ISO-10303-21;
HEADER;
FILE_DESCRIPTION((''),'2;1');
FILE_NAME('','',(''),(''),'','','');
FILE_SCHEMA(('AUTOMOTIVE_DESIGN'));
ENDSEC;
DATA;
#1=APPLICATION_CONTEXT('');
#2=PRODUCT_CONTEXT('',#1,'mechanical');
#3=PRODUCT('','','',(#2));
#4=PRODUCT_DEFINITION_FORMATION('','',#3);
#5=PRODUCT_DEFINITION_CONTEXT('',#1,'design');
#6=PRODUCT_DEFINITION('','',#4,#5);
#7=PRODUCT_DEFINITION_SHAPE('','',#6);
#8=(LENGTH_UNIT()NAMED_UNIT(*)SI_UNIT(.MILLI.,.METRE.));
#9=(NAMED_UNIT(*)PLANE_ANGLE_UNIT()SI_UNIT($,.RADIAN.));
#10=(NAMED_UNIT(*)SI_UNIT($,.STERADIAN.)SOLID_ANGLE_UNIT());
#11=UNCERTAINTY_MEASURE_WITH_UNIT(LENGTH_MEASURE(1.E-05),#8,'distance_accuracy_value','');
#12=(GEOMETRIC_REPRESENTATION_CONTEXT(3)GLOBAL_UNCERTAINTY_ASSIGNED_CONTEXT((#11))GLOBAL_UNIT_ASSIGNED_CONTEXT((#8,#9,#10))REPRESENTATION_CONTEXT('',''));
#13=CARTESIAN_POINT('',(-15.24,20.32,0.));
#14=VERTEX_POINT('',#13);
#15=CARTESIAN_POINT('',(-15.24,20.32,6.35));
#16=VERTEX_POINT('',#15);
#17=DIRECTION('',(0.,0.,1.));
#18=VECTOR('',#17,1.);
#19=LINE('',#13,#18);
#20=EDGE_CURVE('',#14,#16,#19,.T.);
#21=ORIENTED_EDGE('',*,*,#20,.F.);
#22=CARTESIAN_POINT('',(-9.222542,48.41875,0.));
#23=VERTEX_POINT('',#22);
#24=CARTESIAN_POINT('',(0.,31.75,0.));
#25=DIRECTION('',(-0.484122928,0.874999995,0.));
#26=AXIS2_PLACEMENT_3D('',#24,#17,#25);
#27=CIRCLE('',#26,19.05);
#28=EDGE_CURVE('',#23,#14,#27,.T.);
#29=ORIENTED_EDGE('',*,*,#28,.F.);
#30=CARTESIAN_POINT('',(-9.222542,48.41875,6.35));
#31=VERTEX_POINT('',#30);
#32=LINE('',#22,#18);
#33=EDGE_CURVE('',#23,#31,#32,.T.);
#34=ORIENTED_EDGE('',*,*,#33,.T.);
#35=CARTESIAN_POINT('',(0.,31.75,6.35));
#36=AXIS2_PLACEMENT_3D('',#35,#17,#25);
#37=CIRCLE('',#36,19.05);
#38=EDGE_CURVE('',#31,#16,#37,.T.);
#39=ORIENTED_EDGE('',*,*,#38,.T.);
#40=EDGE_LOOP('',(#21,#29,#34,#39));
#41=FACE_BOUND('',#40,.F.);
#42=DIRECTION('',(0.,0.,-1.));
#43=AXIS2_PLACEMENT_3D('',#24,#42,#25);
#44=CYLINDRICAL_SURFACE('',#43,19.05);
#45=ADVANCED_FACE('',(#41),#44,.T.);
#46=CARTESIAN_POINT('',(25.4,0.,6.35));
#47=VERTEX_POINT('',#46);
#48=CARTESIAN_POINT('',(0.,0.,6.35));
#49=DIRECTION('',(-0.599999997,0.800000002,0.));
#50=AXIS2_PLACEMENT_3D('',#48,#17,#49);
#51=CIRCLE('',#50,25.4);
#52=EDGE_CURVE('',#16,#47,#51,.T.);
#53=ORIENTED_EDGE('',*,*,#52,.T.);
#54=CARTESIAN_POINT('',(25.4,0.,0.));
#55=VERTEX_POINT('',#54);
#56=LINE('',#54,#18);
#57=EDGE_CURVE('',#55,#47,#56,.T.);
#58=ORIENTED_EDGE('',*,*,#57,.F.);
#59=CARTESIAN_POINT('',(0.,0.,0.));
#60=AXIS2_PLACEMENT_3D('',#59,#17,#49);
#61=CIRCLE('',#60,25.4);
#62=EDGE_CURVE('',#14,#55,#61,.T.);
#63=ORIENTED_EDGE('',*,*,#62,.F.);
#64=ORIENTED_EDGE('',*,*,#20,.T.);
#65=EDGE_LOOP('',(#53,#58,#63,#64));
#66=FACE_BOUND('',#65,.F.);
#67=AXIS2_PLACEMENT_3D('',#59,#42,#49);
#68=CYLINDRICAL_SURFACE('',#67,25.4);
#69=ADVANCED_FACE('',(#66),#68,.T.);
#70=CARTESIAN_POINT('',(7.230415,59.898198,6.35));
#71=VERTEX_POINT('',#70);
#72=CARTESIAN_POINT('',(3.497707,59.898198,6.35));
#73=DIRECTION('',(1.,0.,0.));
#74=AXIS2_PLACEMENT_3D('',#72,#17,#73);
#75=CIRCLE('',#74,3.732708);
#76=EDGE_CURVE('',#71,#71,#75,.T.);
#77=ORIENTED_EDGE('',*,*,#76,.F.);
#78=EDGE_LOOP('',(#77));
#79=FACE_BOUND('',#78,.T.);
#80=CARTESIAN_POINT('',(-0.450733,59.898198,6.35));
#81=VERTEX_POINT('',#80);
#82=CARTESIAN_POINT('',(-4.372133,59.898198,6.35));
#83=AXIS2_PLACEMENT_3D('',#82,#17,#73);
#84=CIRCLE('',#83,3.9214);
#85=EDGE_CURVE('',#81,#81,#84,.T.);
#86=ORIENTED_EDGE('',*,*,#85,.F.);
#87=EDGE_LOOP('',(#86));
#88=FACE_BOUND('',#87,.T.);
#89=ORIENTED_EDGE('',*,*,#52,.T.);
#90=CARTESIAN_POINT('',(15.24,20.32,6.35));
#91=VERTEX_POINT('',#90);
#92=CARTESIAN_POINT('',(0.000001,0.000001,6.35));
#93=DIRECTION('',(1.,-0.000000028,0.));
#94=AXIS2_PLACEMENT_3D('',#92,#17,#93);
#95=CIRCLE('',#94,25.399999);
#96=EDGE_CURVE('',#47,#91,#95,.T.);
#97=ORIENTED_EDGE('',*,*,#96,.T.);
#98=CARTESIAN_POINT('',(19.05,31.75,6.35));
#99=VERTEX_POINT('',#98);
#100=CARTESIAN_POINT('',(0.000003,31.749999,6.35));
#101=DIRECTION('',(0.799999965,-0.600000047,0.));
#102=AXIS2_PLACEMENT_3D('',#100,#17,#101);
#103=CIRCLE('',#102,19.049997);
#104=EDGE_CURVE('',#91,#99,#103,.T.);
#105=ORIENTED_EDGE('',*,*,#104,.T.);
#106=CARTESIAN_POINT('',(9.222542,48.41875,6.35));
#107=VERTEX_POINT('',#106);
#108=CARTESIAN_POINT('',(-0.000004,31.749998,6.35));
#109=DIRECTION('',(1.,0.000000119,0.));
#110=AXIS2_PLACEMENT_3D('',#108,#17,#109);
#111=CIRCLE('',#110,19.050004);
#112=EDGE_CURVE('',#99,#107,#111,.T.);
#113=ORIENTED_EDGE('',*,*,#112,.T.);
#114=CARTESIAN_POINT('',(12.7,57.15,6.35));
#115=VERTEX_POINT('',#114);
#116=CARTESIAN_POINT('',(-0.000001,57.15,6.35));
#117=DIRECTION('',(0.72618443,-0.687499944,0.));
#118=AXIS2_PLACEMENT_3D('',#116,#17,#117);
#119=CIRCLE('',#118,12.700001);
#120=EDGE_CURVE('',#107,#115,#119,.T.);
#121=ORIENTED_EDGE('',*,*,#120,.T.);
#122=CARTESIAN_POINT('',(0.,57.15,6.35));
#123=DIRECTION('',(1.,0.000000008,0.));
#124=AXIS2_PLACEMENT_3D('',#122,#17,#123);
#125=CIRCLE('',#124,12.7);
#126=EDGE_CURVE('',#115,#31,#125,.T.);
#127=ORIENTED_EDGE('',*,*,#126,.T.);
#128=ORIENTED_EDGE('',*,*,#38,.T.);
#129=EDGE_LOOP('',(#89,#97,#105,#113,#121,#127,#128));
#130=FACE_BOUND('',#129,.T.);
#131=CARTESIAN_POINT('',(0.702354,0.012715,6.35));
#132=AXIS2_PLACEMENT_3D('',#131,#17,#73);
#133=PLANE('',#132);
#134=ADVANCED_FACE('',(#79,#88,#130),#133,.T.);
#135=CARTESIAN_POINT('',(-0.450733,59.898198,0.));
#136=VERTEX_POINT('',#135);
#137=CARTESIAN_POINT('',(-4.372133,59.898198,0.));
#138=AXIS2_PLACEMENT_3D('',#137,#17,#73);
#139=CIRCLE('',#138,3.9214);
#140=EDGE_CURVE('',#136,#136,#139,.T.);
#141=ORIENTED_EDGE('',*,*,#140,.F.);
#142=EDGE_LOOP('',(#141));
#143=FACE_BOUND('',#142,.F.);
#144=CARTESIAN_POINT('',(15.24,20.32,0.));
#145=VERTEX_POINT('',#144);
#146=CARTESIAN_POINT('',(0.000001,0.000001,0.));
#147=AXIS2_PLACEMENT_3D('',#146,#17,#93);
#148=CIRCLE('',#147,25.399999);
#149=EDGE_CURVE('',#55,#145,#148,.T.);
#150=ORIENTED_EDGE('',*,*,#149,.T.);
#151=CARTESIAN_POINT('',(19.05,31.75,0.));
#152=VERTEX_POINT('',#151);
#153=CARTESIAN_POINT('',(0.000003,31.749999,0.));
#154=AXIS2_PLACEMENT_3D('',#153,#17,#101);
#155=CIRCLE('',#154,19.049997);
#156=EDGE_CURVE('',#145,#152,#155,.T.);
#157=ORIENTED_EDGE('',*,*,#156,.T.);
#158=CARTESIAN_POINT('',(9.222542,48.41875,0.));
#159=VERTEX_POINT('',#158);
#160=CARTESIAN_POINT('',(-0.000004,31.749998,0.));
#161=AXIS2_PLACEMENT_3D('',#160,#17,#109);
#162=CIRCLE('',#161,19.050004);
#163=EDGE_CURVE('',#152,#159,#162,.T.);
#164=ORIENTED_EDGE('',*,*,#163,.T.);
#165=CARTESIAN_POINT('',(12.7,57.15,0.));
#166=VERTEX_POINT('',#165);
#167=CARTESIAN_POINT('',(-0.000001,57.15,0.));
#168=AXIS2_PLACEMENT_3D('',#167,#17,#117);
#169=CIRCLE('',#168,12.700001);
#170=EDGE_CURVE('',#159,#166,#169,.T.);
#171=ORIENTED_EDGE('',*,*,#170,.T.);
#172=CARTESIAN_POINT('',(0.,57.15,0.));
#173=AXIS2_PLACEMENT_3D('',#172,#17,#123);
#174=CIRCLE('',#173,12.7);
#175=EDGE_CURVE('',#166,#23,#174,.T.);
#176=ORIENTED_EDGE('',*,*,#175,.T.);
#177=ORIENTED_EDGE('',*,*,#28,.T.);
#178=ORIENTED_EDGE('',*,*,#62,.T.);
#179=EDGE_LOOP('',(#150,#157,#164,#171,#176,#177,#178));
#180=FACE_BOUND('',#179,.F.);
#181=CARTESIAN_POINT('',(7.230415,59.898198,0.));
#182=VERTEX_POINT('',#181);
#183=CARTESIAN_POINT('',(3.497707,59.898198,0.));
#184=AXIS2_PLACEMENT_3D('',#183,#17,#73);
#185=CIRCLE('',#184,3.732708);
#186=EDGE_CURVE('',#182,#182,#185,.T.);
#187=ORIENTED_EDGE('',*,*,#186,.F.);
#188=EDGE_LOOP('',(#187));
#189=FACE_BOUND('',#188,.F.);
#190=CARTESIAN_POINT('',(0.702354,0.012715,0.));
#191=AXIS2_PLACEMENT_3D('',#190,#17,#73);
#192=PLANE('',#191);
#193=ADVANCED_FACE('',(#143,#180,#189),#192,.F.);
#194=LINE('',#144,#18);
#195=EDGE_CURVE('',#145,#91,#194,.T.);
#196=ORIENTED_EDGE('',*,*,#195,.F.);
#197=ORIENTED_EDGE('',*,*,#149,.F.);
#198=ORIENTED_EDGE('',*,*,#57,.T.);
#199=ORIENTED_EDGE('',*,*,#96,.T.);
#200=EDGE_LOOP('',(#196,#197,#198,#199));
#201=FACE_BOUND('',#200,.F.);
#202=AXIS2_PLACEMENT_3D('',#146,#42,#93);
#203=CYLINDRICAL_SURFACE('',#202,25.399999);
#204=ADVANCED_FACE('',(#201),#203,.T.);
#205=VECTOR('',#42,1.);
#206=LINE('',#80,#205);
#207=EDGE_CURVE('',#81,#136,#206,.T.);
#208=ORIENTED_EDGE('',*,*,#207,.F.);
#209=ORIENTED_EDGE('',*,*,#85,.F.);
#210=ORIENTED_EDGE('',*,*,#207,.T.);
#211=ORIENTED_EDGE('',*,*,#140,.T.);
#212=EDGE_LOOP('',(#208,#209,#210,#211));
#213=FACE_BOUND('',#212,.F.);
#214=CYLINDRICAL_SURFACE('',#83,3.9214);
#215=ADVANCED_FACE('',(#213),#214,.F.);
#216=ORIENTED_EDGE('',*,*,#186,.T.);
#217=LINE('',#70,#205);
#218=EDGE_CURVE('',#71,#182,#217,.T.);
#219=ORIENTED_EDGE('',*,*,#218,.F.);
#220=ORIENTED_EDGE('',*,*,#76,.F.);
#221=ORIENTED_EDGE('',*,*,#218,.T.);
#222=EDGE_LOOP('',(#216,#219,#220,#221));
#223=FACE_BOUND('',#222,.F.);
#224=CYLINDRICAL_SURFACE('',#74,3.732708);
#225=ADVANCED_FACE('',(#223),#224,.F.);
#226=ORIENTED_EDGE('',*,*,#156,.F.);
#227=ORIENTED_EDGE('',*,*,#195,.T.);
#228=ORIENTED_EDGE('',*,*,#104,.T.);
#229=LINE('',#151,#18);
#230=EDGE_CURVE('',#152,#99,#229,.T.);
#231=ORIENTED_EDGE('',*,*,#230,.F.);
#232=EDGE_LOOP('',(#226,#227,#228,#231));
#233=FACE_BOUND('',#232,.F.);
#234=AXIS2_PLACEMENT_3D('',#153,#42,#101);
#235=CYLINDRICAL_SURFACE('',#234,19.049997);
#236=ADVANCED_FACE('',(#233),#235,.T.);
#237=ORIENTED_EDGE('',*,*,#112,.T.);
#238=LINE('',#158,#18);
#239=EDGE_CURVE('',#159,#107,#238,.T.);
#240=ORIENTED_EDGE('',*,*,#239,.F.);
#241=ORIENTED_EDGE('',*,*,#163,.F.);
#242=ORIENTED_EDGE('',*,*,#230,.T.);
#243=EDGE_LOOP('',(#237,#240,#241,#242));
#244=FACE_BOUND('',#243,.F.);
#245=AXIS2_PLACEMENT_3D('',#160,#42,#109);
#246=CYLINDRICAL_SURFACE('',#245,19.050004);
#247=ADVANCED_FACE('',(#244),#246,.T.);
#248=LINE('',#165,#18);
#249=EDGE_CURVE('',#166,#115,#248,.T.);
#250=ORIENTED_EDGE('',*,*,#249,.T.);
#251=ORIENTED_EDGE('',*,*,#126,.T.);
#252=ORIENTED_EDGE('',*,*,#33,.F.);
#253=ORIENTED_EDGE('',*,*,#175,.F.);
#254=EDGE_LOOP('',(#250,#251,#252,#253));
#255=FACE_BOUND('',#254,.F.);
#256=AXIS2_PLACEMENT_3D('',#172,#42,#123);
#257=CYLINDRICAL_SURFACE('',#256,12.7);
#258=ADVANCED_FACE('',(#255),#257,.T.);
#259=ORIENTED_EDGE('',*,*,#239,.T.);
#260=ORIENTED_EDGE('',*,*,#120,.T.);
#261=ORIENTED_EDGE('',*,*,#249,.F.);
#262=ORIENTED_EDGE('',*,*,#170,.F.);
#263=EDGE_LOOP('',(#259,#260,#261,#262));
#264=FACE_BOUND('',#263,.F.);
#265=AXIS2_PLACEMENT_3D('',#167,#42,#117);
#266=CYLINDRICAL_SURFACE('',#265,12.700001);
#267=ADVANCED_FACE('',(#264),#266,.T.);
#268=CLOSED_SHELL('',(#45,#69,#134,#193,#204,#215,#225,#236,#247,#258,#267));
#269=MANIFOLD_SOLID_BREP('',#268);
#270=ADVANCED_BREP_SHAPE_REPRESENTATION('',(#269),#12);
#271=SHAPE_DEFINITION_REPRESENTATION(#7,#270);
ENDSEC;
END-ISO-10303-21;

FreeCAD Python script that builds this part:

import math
import FreeCAD as App
import Part
import Sketcher
from FreeCAD import Vector
Q = App.Units.Quantity

doc = App.newDocument("Part")
params = doc.addObject("Spreadsheet::Sheet", "Params")
for row, (alias, value) in enumerate([
    ("sketch1_radius", "1 in"),
    ("sketch1_radius2", "0.5 in"),
    ("sketch1_radius3", "0.7499999 in"),
    ("pad1_length", "0.25 in"),
    ("pocket1_length", "1 in"),
], start=1):
    params.set(f"A{row}", alias)
    params.set(f"B{row}", "=" + value)
    params.setAlias(f"B{row}", alias)

body = doc.addObject("PartDesign::Body", "Body")

# Sketch on XY plane
sketch1 = body.newObject("Sketcher::SketchObject", "Sketch")
sketch1.AttachmentSupport = (doc.getObject("XY_Plane"), [""])
sketch1.MapMode = "FlatFace"
sketch1.addGeometry(Part.ArcOfCircle(Part.Circle(Vector(0, 0, 0), Vector(0, 0, 1), 25), math.radians(127), math.radians(360)), False)
sketch1.addGeometry(Part.ArcOfCircle(Part.Circle(Vector(0, 0, 0), Vector(0, 0, 1), 25), math.radians(0), math.radians(53)), False)
sketch1.addGeometry(Part.ArcOfCircle(Part.Circle(Vector(0, 32, 0), Vector(0, 0, 1), 19), math.radians(-37), math.radians(0)), False)
sketch1.addGeometry(Part.ArcOfCircle(Part.Circle(Vector(0, 32, 0), Vector(0, 0, 1), 19), math.radians(0), math.radians(61)), False)
sketch1.addGeometry(Part.ArcOfCircle(Part.Circle(Vector(0, 57, 0), Vector(0, 0, 1), 13), math.radians(-43), math.radians(0)), False)
sketch1.addGeometry(Part.ArcOfCircle(Part.Circle(Vector(0, 57, 0), Vector(0, 0, 1), 13), math.radians(0), math.radians(223)), False)
sketch1.addGeometry(Part.ArcOfCircle(Part.Circle(Vector(0, 32, 0), Vector(0, 0, 1), 19), math.radians(119), math.radians(217)), False)
sketch1.addConstraint(Sketcher.Constraint("Tangent", 0, 2, 1, 1))
sketch1.addConstraint(Sketcher.Constraint("Coincident", 1, 2, 2, 1))
sketch1.addConstraint(Sketcher.Constraint("Tangent", 2, 2, 3, 1))
sketch1.addConstraint(Sketcher.Constraint("Coincident", 3, 2, 4, 1))
sketch1.addConstraint(Sketcher.Constraint("Tangent", 4, 2, 5, 1))
sketch1.addConstraint(Sketcher.Constraint("Coincident", 5, 2, 6, 1))
sketch1.addConstraint(Sketcher.Constraint("Coincident", 6, 2, 0, 1))
sketch1.addConstraint(Sketcher.Constraint("Coincident", 0, 3, -1, 1))
sketch1.addConstraint(Sketcher.Constraint("Coincident", 6, 3, 2, 3))
sketch1.addConstraint(Sketcher.Constraint("Equal", 0, 1))
sketch1.addConstraint(Sketcher.Constraint("Equal", 4, 5))
sketch1.addConstraint(Sketcher.Constraint("Symmetric", 3, 2, 5, 2, -2))
sketch1.addConstraint(Sketcher.Constraint("PointOnObject", 6, 3, -2))
sketch1.addConstraint(Sketcher.Constraint("PointOnObject", 0, 2, -1))
sketch1.addConstraint(Sketcher.Constraint("Horizontal", 6, 3, 2, 2))
sketch1.addConstraint(Sketcher.Constraint("Horizontal", 5, 3, 4, 2))
sketch1.addConstraint(Sketcher.Constraint("Horizontal", 1, 2, 6, 2))
sketch1.addConstraint(Sketcher.Constraint("Radius", 0, Q("1 in")))
sketch1.addConstraint(Sketcher.Constraint("Radius", 4, Q("0.5 in")))
sketch1.addConstraint(Sketcher.Constraint("Radius", 2, Q("0.7499999 in")))
sketch1.addConstraint(Sketcher.Constraint("DistanceY", 2, 3, 4, 3, Q("1 in")))
sketch1.addConstraint(Sketcher.Constraint("DistanceX", -1, 1, 1, 2, Q("0.6 in")))
sketch1.setExpression("Constraints[17]", "Params.sketch1_radius")
sketch1.setExpression("Constraints[18]", "Params.sketch1_radius2")
sketch1.setExpression("Constraints[19]", "Params.sketch1_radius3")
pad1 = body.newObject("PartDesign::Pad", "Pad")
pad1.Profile = sketch1
pad1.setExpression("Length", "Params.pad1_length")

# Sketch on XY plane
sketch2 = body.newObject("Sketcher::SketchObject", "Sketch001")
sketch2.AttachmentSupport = (doc.getObject("XY_Plane"), [""])
sketch2.MapMode = "FlatFace"
sketch2.AttachmentOffset = App.Placement(Vector(0, 0, 0.25 * 25.4), App.Rotation())
sketch2.addGeometry(Part.Circle(Vector(-4.4, 59.9, 0), Vector(0, 0, 1), 3.9), False)
sketch2.addGeometry(Part.Circle(Vector(3.5, 59.9, 0), Vector(0, 0, 1), 3.7), False)
sketch2.addConstraint(Sketcher.Constraint("Horizontal", 0, 3, 1, 3))
sketch2.addConstraint(Sketcher.Constraint("Diameter", 0, Q("7.8428 mm")))
sketch2.addConstraint(Sketcher.Constraint("Diameter", 1, Q("7.465416 mm")))
sketch2.addConstraint(Sketcher.Constraint("DistanceX", 0, 3, 1, 3, Q("7.86984 mm")))
sketch2.addConstraint(Sketcher.Constraint("DistanceX", 0, 3, -1, 1, Q("4.372133 mm")))
sketch2.addConstraint(Sketcher.Constraint("DistanceY", -1, 1, 0, 3, Q("59.898198 mm")))
pocket1 = body.newObject("PartDesign::Pocket", "Pocket")
pocket1.Profile = sketch2
pocket1.setExpression("Length", "Params.pocket1_length")

doc.recompute()
